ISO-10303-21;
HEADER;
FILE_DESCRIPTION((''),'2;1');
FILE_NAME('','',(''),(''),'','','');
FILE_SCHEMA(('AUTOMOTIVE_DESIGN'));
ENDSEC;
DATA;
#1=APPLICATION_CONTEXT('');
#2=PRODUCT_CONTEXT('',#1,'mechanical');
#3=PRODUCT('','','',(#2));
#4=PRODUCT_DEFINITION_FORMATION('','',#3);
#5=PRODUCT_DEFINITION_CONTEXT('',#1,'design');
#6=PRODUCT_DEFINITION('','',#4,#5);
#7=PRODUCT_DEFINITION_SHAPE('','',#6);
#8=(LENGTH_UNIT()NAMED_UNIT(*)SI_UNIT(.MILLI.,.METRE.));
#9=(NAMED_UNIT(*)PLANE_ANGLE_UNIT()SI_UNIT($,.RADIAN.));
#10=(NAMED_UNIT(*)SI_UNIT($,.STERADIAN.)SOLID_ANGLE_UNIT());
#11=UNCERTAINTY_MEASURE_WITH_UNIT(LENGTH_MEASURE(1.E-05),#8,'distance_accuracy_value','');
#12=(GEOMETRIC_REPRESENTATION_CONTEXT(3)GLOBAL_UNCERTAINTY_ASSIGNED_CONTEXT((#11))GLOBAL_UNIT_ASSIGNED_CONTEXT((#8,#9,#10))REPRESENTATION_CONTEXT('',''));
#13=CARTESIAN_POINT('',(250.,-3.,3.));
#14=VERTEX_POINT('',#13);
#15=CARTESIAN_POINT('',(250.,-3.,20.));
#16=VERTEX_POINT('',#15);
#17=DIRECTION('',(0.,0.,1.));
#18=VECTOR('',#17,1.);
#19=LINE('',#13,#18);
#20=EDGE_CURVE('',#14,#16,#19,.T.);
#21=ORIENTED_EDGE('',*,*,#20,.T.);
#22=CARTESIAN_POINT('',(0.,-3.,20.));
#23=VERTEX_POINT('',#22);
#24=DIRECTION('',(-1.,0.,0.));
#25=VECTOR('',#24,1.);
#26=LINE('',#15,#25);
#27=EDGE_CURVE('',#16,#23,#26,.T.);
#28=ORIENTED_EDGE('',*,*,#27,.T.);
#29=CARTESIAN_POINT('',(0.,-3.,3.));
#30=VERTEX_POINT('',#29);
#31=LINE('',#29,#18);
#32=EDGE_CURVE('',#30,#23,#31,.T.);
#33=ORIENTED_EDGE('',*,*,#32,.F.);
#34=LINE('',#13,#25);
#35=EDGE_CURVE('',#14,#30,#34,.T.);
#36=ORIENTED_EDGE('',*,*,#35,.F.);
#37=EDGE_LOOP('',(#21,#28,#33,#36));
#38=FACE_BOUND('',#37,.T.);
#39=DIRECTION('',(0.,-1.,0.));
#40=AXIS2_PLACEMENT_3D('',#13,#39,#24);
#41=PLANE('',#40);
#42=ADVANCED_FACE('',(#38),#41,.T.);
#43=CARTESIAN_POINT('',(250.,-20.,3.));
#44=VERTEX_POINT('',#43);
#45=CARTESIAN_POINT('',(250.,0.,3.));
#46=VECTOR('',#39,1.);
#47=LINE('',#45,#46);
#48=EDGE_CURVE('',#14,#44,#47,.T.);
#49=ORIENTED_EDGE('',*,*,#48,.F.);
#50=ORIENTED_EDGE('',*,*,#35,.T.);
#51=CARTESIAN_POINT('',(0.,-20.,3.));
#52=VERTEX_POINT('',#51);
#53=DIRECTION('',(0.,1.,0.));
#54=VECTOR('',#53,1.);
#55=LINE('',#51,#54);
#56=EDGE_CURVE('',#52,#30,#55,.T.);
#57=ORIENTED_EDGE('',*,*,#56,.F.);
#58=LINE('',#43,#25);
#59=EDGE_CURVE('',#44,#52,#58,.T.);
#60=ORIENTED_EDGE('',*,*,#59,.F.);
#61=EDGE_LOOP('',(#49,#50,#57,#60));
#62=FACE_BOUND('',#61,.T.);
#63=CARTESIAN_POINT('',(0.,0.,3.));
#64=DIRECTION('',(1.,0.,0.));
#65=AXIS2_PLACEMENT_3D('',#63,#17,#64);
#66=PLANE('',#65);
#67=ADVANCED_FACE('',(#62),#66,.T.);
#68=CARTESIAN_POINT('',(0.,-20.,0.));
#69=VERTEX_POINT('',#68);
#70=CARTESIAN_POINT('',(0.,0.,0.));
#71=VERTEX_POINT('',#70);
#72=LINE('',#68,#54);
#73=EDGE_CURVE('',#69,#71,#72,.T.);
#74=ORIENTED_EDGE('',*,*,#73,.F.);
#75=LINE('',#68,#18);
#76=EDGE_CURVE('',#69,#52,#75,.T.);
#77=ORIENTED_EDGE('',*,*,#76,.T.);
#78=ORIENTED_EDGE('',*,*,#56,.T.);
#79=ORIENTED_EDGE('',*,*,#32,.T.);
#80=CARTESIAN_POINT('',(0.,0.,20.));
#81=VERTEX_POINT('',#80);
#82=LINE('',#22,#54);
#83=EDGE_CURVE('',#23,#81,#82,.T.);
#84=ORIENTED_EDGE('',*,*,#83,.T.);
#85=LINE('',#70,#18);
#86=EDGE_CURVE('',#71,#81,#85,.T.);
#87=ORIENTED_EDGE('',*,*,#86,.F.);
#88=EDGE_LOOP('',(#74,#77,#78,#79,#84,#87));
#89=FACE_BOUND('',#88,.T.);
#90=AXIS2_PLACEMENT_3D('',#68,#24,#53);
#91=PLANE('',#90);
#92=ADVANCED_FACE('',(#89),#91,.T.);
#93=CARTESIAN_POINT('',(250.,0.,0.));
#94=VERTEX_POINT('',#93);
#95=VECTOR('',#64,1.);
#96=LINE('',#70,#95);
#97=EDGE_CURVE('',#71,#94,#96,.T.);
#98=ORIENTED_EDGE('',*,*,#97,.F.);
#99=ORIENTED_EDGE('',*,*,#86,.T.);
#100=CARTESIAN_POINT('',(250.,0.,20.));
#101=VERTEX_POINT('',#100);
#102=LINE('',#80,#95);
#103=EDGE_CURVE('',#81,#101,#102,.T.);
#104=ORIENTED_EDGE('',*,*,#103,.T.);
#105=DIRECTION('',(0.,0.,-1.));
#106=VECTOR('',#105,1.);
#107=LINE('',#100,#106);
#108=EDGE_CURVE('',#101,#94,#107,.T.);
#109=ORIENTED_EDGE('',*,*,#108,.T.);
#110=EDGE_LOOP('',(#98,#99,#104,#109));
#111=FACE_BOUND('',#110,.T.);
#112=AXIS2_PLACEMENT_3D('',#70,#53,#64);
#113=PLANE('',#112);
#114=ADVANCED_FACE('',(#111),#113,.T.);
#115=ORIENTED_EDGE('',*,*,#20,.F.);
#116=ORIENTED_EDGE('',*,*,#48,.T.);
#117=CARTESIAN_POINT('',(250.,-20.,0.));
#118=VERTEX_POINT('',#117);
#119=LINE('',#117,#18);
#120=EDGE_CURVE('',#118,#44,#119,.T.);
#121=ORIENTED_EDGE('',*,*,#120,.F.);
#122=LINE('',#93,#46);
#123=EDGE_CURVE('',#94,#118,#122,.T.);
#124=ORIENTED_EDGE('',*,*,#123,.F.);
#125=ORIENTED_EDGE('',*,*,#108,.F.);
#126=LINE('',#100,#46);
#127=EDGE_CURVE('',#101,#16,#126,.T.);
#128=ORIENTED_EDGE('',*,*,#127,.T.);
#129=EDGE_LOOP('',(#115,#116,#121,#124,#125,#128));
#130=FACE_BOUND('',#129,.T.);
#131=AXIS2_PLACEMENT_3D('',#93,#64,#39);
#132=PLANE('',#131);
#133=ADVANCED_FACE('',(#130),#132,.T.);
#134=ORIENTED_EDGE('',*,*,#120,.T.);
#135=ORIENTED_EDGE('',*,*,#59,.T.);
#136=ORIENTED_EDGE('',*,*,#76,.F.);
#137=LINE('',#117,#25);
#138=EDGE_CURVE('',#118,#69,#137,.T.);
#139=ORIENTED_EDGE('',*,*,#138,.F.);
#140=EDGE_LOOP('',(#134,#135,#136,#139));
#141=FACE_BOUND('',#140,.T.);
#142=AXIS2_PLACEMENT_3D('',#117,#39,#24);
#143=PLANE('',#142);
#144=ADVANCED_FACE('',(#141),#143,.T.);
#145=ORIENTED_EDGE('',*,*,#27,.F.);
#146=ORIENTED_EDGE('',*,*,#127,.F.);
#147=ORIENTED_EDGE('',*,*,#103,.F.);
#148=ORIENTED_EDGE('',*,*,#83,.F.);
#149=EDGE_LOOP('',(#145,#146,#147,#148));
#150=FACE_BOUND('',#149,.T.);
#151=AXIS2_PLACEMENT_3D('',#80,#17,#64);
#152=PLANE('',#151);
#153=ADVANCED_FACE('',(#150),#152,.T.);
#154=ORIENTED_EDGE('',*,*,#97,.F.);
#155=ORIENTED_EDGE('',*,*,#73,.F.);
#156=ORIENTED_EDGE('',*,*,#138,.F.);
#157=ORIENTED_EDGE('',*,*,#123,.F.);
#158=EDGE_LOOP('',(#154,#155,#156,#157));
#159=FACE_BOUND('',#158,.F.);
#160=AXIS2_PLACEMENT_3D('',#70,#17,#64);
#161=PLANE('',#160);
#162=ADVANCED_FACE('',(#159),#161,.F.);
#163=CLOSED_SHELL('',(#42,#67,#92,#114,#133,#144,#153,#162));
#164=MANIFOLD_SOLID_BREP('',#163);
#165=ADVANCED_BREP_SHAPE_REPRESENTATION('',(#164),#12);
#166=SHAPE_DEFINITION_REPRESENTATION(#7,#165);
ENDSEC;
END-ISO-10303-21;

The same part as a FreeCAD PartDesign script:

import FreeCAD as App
import Part
import Sketcher
from FreeCAD import Vector
Q = App.Units.Quantity

doc = App.newDocument("Part")
body = doc.addObject("PartDesign::Body", "Body")

sketch1 = body.newObject("Sketcher::SketchObject", "Sketch")
sketch1.AttachmentSupport = (doc.getObject("XY_Plane"), [""])
sketch1.MapMode = "FlatFace"
sketch1.addGeometry([
    Part.LineSegment(Vector(250, 0, 0), Vector(0, 0, 0)),
    Part.LineSegment(Vector(0, 0, 0), Vector(0, -20, 0)),
    Part.LineSegment(Vector(0, -20, 0), Vector(250, -20, 0)),
    Part.LineSegment(Vector(250, -20, 0), Vector(250, 0, 0)),
], False)
sketch1.addConstraint([
    Sketcher.Constraint("Coincident", 0, 2, 1, 1),
    Sketcher.Constraint("Coincident", 1, 2, 2, 1),
    Sketcher.Constraint("Coincident", 2, 2, 3, 1),
    Sketcher.Constraint("Coincident", 3, 2, 0, 1),
    Sketcher.Constraint("Horizontal", 0),
    Sketcher.Constraint("Vertical", 1),
    Sketcher.Constraint("Horizontal", 2),
    Sketcher.Constraint("Vertical", 3),
    Sketcher.Constraint("Coincident", 0, 2, -1, 1),
    Sketcher.Constraint("DistanceX", 0, 2, 0, 1, Q("250 mm")),
    Sketcher.Constraint("DistanceY", 1, 2, 1, 1, Q("20 mm")),
])
pad1 = body.newObject("PartDesign::Pad", "Pad")
pad1.Profile = sketch1
pad1.Length = 3

sketch2 = body.newObject("Sketcher::SketchObject", "Sketch001")
sketch2.AttachmentSupport = (doc.getObject("XY_Plane"), [""])
sketch2.MapMode = "FlatFace"
sketch2.AttachmentOffset = App.Placement(Vector(0, 0, 3), App.Rotation())
sketch2.addGeometry([
    Part.LineSegment(Vector(250, 0, 0), Vector(0, 0, 0)),
    Part.LineSegment(Vector(0, 0, 0), Vector(0, -3, 0)),
    Part.LineSegment(Vector(0, -3, 0), Vector(250, -3, 0)),
    Part.LineSegment(Vector(250, -3, 0), Vector(250, 0, 0)),
], False)
sketch2.addConstraint([
    Sketcher.Constraint("Coincident", 0, 2, 1, 1),
    Sketcher.Constraint("Coincident", 1, 2, 2, 1),
    Sketcher.Constraint("Coincident", 2, 2, 3, 1),
    Sketcher.Constraint("Coincident", 3, 2, 0, 1),
    Sketcher.Constraint("Horizontal", 0),
    Sketcher.Constraint("Vertical", 1),
    Sketcher.Constraint("Horizontal", 2),
    Sketcher.Constraint("Vertical", 3),
    Sketcher.Constraint("Coincident", 0, 2, -1, 1),
    Sketcher.Constraint("DistanceX", 0, 2, 0, 1, Q("250 mm")),
    Sketcher.Constraint("DistanceY", 1, 2, 1, 1, Q("3 mm")),
])
pad2 = body.newObject("PartDesign::Pad", "Pad001")
pad2.Profile = sketch2
pad2.Length = 17

doc.recompute()
